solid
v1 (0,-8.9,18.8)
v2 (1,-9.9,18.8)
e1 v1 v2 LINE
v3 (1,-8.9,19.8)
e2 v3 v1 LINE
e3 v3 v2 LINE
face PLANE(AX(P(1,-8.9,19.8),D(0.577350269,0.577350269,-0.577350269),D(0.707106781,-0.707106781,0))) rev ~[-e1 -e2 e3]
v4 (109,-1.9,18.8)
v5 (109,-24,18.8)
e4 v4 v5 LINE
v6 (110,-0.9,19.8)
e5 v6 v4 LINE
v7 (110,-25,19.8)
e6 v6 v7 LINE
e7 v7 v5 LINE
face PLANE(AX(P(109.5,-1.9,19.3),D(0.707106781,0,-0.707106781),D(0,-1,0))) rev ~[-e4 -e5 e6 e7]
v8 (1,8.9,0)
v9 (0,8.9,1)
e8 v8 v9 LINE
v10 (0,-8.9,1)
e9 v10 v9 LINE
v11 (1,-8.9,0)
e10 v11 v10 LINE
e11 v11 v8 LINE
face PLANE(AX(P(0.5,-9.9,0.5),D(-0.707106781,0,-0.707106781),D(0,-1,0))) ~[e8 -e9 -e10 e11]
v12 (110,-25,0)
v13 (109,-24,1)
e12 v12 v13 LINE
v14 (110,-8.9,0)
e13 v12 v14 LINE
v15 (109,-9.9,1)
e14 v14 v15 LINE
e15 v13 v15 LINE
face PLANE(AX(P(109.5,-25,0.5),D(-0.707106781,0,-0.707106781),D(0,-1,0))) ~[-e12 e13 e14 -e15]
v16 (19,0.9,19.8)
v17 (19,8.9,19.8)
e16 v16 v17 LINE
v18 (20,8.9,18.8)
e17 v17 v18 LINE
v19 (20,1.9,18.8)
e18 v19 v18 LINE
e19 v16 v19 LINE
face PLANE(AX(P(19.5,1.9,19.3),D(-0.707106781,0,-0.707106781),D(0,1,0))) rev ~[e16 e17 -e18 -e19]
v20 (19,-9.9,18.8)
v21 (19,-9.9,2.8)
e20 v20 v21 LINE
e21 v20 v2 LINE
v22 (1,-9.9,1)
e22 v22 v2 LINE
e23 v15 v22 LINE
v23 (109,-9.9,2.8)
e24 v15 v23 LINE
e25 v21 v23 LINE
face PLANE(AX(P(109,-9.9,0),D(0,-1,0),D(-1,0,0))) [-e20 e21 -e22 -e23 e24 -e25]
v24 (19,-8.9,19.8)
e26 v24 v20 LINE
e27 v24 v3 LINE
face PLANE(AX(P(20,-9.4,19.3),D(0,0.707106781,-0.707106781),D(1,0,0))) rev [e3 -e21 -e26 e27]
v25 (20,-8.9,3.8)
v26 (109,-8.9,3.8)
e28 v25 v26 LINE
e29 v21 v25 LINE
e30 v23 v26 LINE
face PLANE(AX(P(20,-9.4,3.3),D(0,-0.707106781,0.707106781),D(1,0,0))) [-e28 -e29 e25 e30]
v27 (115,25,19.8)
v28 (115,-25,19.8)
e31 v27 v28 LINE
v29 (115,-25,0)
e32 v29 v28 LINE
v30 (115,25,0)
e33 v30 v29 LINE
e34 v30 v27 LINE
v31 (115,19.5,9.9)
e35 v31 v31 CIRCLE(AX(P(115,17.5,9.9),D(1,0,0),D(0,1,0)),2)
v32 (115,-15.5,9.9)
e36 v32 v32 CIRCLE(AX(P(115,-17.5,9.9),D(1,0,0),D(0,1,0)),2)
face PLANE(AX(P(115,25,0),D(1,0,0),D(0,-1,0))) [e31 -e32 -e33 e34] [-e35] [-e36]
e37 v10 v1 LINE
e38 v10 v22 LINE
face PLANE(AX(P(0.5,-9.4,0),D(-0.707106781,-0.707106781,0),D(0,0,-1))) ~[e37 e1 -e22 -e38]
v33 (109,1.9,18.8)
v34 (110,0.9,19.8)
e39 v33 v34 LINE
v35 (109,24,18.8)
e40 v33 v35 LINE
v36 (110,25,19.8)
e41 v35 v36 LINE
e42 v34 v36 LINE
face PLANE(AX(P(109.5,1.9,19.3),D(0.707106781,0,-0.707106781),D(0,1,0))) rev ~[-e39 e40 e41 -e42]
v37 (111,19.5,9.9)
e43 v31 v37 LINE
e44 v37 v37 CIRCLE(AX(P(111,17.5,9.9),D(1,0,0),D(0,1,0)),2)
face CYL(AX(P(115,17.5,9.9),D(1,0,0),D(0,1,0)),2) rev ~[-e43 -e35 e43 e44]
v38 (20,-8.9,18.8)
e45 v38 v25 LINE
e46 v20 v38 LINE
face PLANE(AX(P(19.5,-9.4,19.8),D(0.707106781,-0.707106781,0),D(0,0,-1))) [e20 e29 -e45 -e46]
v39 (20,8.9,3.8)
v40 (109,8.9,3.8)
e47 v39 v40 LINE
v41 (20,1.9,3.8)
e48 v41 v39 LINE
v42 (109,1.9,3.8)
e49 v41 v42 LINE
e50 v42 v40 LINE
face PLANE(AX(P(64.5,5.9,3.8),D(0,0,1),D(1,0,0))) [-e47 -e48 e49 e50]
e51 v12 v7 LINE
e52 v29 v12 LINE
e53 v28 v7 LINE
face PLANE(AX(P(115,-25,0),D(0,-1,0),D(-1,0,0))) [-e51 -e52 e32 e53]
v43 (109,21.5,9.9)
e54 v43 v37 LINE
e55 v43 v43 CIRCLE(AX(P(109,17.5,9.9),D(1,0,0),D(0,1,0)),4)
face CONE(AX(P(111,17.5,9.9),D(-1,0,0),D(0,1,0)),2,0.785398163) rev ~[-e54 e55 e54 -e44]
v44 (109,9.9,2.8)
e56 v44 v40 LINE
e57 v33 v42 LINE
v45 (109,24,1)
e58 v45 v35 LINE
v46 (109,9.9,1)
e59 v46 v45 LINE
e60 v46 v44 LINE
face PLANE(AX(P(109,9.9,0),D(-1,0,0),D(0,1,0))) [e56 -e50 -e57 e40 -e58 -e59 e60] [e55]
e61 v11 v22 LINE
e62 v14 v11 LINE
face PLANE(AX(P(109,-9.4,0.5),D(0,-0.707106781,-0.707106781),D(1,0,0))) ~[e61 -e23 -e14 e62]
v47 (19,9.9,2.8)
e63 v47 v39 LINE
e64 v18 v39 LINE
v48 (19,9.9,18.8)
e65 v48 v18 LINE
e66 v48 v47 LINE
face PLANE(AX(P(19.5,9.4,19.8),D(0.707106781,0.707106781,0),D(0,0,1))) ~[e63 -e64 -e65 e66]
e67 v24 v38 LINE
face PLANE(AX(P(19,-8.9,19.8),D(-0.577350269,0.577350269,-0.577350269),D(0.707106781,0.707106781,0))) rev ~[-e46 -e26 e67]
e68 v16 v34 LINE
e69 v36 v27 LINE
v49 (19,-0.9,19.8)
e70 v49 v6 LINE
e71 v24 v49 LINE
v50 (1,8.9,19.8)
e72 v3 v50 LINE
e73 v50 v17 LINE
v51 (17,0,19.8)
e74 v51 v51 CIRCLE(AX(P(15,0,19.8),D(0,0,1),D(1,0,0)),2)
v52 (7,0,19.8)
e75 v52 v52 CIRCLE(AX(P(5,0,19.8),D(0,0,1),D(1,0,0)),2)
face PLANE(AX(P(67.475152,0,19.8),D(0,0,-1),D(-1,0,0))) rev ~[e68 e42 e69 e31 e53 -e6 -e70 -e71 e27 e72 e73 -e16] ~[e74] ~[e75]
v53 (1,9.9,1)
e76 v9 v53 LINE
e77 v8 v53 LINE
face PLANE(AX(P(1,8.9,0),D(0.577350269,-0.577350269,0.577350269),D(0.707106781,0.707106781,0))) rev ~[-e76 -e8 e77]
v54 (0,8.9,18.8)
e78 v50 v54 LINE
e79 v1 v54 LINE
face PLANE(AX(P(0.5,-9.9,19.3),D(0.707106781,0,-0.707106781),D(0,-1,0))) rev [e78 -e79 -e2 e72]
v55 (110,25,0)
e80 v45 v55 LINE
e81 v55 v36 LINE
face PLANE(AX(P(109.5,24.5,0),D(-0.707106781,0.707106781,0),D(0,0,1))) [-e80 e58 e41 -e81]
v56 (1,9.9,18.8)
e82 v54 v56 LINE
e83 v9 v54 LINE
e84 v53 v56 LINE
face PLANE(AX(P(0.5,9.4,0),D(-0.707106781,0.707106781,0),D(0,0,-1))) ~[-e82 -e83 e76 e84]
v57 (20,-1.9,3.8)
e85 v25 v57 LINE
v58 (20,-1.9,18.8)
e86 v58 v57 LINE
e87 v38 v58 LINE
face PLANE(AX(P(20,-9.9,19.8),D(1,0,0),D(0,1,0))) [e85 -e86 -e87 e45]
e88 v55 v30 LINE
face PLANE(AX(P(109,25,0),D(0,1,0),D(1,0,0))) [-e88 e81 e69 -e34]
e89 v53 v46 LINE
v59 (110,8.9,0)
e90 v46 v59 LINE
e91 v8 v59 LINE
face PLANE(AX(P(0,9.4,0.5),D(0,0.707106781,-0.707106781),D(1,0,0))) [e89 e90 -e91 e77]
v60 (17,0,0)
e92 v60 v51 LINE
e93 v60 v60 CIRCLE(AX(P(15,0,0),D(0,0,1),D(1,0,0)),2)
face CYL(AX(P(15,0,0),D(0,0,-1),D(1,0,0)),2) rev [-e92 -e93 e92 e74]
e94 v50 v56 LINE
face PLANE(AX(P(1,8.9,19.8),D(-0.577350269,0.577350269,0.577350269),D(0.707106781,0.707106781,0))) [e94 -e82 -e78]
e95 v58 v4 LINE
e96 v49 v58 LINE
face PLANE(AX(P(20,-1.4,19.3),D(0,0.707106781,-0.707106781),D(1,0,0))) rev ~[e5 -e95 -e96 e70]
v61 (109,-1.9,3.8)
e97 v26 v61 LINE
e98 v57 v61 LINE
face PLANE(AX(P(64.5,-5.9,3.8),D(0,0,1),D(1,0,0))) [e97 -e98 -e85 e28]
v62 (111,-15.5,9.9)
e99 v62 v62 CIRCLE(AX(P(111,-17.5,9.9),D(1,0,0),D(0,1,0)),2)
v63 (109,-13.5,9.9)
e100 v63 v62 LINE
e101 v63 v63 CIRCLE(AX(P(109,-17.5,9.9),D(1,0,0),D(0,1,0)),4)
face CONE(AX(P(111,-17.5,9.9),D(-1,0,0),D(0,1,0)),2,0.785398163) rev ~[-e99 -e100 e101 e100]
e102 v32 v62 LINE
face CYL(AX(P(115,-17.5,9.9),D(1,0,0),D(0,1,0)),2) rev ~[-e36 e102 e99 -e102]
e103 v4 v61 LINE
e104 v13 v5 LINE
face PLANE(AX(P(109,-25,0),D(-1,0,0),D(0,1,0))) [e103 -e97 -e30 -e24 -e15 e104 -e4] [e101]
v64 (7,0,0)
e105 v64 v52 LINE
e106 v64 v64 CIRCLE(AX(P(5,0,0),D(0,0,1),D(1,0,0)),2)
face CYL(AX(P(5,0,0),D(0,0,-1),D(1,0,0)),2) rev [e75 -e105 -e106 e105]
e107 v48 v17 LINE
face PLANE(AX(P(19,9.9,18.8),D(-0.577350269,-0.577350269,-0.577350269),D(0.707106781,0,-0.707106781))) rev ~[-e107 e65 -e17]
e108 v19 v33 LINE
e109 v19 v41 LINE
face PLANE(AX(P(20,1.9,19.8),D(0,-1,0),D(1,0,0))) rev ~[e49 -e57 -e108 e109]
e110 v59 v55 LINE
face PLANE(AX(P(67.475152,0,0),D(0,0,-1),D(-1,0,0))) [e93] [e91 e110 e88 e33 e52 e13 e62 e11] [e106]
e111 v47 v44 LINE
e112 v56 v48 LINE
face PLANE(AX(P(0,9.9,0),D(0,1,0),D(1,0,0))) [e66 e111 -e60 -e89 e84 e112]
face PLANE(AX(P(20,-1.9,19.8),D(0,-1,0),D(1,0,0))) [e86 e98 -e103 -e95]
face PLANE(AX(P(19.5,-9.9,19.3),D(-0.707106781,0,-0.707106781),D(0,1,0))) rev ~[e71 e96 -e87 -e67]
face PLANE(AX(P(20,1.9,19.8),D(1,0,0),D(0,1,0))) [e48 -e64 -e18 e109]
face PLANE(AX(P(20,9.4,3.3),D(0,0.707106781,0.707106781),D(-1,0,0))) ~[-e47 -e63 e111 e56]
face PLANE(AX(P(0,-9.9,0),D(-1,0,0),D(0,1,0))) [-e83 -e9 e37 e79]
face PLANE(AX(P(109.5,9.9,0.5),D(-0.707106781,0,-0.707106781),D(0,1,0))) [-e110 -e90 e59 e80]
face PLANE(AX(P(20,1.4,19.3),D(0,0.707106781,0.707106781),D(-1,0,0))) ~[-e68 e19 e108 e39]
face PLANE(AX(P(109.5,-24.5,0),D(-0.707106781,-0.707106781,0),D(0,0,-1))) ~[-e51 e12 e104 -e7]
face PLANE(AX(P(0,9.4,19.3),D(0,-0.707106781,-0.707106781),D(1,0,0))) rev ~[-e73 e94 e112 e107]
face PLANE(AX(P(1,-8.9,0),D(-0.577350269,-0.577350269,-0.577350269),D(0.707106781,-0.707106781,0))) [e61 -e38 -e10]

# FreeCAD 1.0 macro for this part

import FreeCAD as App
import Part
import Sketcher
from FreeCAD import Vector


def edges_at(feature, points):
    """Names of the edges that pass closest to the given points."""
    edges = feature.Shape.Edges
    near = lambda p: min(range(len(edges)), key=lambda i: edges[i].distToShape(Part.Vertex(*p))[0])
    return sorted({f"Edge{near(p) + 1}" for p in points})

doc = App.newDocument("Part")
body = doc.addObject("PartDesign::Body", "Body")

# Sketch on XY plane
sketch1 = body.newObject("Sketcher::SketchObject", "Sketch")
sketch1.AttachmentSupport = (doc.getObject("XY_Plane"), [""])
sketch1.MapMode = "FlatFace"
sketch1.addGeometry(Part.LineSegment(Vector(109, 9.9, 0), Vector(0, 9.9, 0)), False)
sketch1.addGeometry(Part.LineSegment(Vector(0, 9.9, 0), Vector(0, -9.9, 0)), False)
sketch1.addGeometry(Part.LineSegment(Vector(0, -9.9, 0), Vector(109, -9.9, 0)), False)
sketch1.addGeometry(Part.LineSegment(Vector(109, -9.9, 0), Vector(109, -25, 0)), False)
sketch1.addGeometry(Part.LineSegment(Vector(109, -25, 0), Vector(115, -25, 0)), False)
sketch1.addGeometry(Part.LineSegment(Vector(115, -25, 0), Vector(115, 25, 0)), False)
sketch1.addGeometry(Part.LineSegment(Vector(115, 25, 0), Vector(109, 25, 0)), False)
sketch1.addGeometry(Part.LineSegment(Vector(109, 25, 0), Vector(109, 9.9, 0)), False)
sketch1.addGeometry(Part.Circle(Vector(15, 0, 0), Vector(0, 0, 1), 2), False)
sketch1.addGeometry(Part.Circle(Vector(5, 0, 0), Vector(0, 0, 1), 2), False)
sketch1.addConstraint(Sketcher.Constraint("Coincident", 0, 2, 1, 1))
sketch1.addConstraint(Sketcher.Constraint("Coincident", 1, 2, 2, 1))
sketch1.addConstraint(Sketcher.Constraint("Coincident", 2, 2, 3, 1))
sketch1.addConstraint(Sketcher.Constraint("Coincident", 3, 2, 4, 1))
sketch1.addConstraint(Sketcher.Constraint("Coincident", 4, 2, 5, 1))
sketch1.addConstraint(Sketcher.Constraint("Coincident", 5, 2, 6, 1))
sketch1.addConstraint(Sketcher.Constraint("Coincident", 6, 2, 7, 1))
sketch1.addConstraint(Sketcher.Constraint("Coincident", 7, 2, 0, 1))
sketch1.addConstraint(Sketcher.Constraint("Horizontal", 0))
sketch1.addConstraint(Sketcher.Constraint("Vertical", 1))
sketch1.addConstraint(Sketcher.Constraint("Horizontal", 2))
sketch1.addConstraint(Sketcher.Constraint("Vertical", 3))
sketch1.addConstraint(Sketcher.Constraint("Horizontal", 4))
sketch1.addConstraint(Sketcher.Constraint("Vertical", 5))
sketch1.addConstraint(Sketcher.Constraint("Horizontal", 6))
sketch1.addConstraint(Sketcher.Constraint("Vertical", 7))
sketch1.addConstraint(Sketcher.Constraint("Equal", 8, 9))
sketch1.addConstraint(Sketcher.Constraint("Symmetric", 0, 2, 1, 2, -1, 1))
sketch1.addConstraint(Sketcher.Constraint("Symmetric", 3, 2, 6, 2, -1))
sketch1.addConstraint(Sketcher.Constraint("PointOnObject", 8, 3, -1))
sketch1.addConstraint(Sketcher.Constraint("PointOnObject", 9, 3, -1))
sketch1.addConstraint(Sketcher.Constraint("Diameter", 8, 4.0))
sketch1.addConstraint(Sketcher.Constraint("DistanceX", 0, 2, 0, 1, 109.0))
sketch1.addConstraint(Sketcher.Constraint("DistanceX", 4, 1, 4, 2, 6.0))
sketch1.addConstraint(Sketcher.Constraint("DistanceY", 5, 1, 5, 2, 50.0))
sketch1.addConstraint(Sketcher.Constraint("DistanceY", 1, 2, 1, 1, 19.8))
sketch1.addConstraint(Sketcher.Constraint("DistanceX", -1, 1, 8, 3, 15.0))
sketch1.addConstraint(Sketcher.Constraint("DistanceX", -1, 1, 9, 3, 5.0))
pad1 = body.newObject("PartDesign::Pad", "Pad")
pad1.Profile = sketch1
pad1.Length = 19.8

# Sketch on XY plane
sketch2 = body.newObject("Sketcher::SketchObject", "Sketch001")
sketch2.AttachmentSupport = (doc.getObject("XY_Plane"), [""])
sketch2.MapMode = "FlatFace"
sketch2.AttachmentOffset = App.Placement(Vector(0, 0, 19.8), App.Rotation())
sketch2.addGeometry(Part.LineSegment(Vector(20, -2, 0), Vector(20, -10, 0)), False)
sketch2.addGeometry(Part.LineSegment(Vector(20, -10, 0), Vector(109, -10, 0)), False)
sketch2.addGeometry(Part.LineSegment(Vector(109, -10, 0), Vector(109, -2, 0)), False)
sketch2.addGeometry(Part.LineSegment(Vector(109, -2, 0), Vector(20, -2, 0)), False)
sketch2.addGeometry(Part.LineSegment(Vector(20, 10, 0), Vector(20, 2, 0)), False)
sketch2.addGeometry(Part.LineSegment(Vector(20, 2, 0), Vector(109, 2, 0)), False)
sketch2.addGeometry(Part.LineSegment(Vector(109, 2, 0), Vector(109, 10, 0)), False)
sketch2.addGeometry(Part.LineSegment(Vector(109, 10, 0), Vector(20, 10, 0)), False)
sketch2.addConstraint(Sketcher.Constraint("Coincident", 0, 2, 1, 1))
sketch2.addConstraint(Sketcher.Constraint("Coincident", 1, 2, 2, 1))
sketch2.addConstraint(Sketcher.Constraint("Coincident", 2, 2, 3, 1))
sketch2.addConstraint(Sketcher.Constraint("Coincident", 3, 2, 0, 1))
sketch2.addConstraint(Sketcher.Constraint("Coincident", 4, 2, 5, 1))
sketch2.addConstraint(Sketcher.Constraint("Coincident", 5, 2, 6, 1))
sketch2.addConstraint(Sketcher.Constraint("Coincident", 6, 2, 7, 1))
sketch2.addConstraint(Sketcher.Constraint("Coincident", 7, 2, 4, 1))
sketch2.addConstraint(Sketcher.Constraint("Vertical", 0))
sketch2.addConstraint(Sketcher.Constraint("Horizontal", 1))
sketch2.addConstraint(Sketcher.Constraint("Vertical", 2))
sketch2.addConstraint(Sketcher.Constraint("Horizontal", 3))
sketch2.addConstraint(Sketcher.Constraint("Vertical", 4))
sketch2.addConstraint(Sketcher.Constraint("Horizontal", 5))
sketch2.addConstraint(Sketcher.Constraint("Vertical", 6))
sketch2.addConstraint(Sketcher.Constraint("Horizontal", 7))
sketch2.addConstraint(Sketcher.Constraint("Symmetric", 3, 2, 4, 2, -1))
sketch2.addConstraint(Sketcher.Constraint("Symmetric", 1, 2, 6, 2, -1))
sketch2.addConstraint(Sketcher.Constraint("DistanceX", 1, 1, 1, 2, 89.0))
sketch2.addConstraint(Sketcher.Constraint("DistanceY", 0, 2, 0, 1, 8.0))
sketch2.addConstraint(Sketcher.Constraint("DistanceX", -1, 1, 0, 2, 20.0))
sketch2.addConstraint(Sketcher.Constraint("DistanceY", 0, 2, -1, 1, 9.9))
pocket1 = body.newObject("PartDesign::Pocket", "Pocket")
pocket1.Profile = sketch2
pocket1.Length = 16

# Sketch on YZ plane
sketch3 = body.newObject("Sketcher::SketchObject", "Sketch002")
sketch3.AttachmentSupport = (doc.getObject("YZ_Plane"), [""])
sketch3.MapMode = "FlatFace"
sketch3.AttachmentOffset = App.Placement(Vector(0, 0, 115), App.Rotation())
sketch3.addGeometry(Part.Circle(Vector(-17.5, 9.9, 0), Vector(0, 0, 1), 2), False)
sketch3.addGeometry(Part.Circle(Vector(17.5, 9.9, 0), Vector(0, 0, 1), 2), False)
sketch3.addConstraint(Sketcher.Constraint("Equal", 0, 1))
sketch3.addConstraint(Sketcher.Constraint("Symmetric", 0, 3, 1, 3, -2))
sketch3.addConstraint(Sketcher.Constraint("Diameter", 0, 4.0))
sketch3.addConstraint(Sketcher.Constraint("DistanceX", 0, 3, 1, 3, 35.0))
sketch3.addConstraint(Sketcher.Constraint("DistanceY", -1, 1, 0, 3, 9.9))
pocket2 = body.newObject("PartDesign::Pocket", "Pocket001")
pocket2.Profile = sketch3
pocket2.Type = "ThroughAll"
doc.recompute()

chamfer = body.newObject("PartDesign::Chamfer", "Chamfer")
chamfer.Base = (pocket2, edges_at(pocket2, [(109, -19.5, 9.9), (109, 15.5, 9.9)]))
chamfer.Size = 2
doc.recompute()

chamfer2 = body.newObject("PartDesign::Chamfer", "Chamfer001")
chamfer2.Base = (chamfer, edges_at(chamfer, [
    (0, -9.9, 9.9),
    (0, 9.9, 9.9),
    (0, 0, 19.8),
    (0, 0, 0),
    (54.5, 9.9, 0),
    (54.5, -9.9, 0),
    (64.5, 9.9, 3.8),
    (64.5, -9.9, 3.8),
    (20, -9.9, 11.8),
    (10, -9.9, 19.8),
    (20, -5.9, 19.8),
    (20, 5.9, 19.8),
    (10, 9.9, 19.8),
    (20, 9.9, 11.8),
    (64.5, -1.9, 19.8),
    (64.5, 1.9, 19.8),
    (109, -17.45, 0),
    (109, 17.45, 0),
    (109, -13.45, 19.8),
    (109, 13.45, 19.8),
    (109, -25, 9.9),
    (109, 25, 9.9),
]))
chamfer2.Size = 1

doc.recompute()
